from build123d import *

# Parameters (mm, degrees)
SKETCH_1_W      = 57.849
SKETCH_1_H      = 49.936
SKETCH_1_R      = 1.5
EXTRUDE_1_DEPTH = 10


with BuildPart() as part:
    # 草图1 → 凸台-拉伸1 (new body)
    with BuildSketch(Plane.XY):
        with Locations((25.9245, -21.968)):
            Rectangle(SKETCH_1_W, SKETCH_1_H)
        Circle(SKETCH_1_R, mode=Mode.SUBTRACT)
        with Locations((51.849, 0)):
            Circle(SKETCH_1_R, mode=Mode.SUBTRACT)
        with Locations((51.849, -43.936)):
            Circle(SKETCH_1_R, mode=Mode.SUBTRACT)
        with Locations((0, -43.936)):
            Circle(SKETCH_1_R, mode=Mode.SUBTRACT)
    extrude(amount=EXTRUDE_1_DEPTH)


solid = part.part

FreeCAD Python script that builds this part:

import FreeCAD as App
import Part
import Sketcher
from FreeCAD import Vector


def add_polygon(sketch, points):
    """Adds a closed chain of lines whose ends are joined by coincident constraints."""
    first, n = sketch.GeometryCount, len(points)
    for a, b in zip(points, points[1:] + points[:1]):
        sketch.addGeometry(Part.LineSegment(App.Vector(*a, 0), App.Vector(*b, 0)), False)
    for i in range(n):
        sketch.addConstraint(Sketcher.Constraint("Coincident", first + i, 2, first + (i + 1) % n, 1))

doc = App.newDocument("Part")
body = doc.addObject("PartDesign::Body", "Body")

# Sketch on XY plane
sketch1 = doc.addObject("Sketcher::SketchObject", "Sketch")
body.addObject(sketch1)
sketch1.AttachmentSupport = (doc.XY_Plane, [""])
sketch1.MapMode = "FlatFace"
add_polygon(sketch1, [(-3, 3), (-3, -46.936), (54.849, -46.936), (54.849, 3)])  # lines 0-3
sketch1.addGeometry(Part.Circle(Vector(0, -43.936, 0), Vector(0, 0, 1), 1.5), False)  # 4
sketch1.addGeometry(Part.Circle(Vector(51.849, -43.936, 0), Vector(0, 0, 1), 1.5), False)  # 5
sketch1.addGeometry(Part.Circle(Vector(0, 0, 0), Vector(0, 0, 1), 1.5), False)  # 6
sketch1.addGeometry(Part.Circle(Vector(51.849, 0, 0), Vector(0, 0, 1), 1.5), False)  # 7
sketch1.addConstraint([
    Sketcher.Constraint("Vertical", 0),
    Sketcher.Constraint("Horizontal", 1),
    Sketcher.Constraint("Vertical", 2),
    Sketcher.Constraint("Horizontal", 3),
    Sketcher.Constraint("Coincident", 6, 3, -1, 1),
    Sketcher.Constraint("Equal", 4, 5),
    Sketcher.Constraint("Equal", 5, 6),
    Sketcher.Constraint("Equal", 6, 7),
    Sketcher.Constraint("PointOnObject", 4, 3, -2),
    Sketcher.Constraint("PointOnObject", 7, 3, -1),
    Sketcher.Constraint("Horizontal", 4, 3, 5, 3),
    Sketcher.Constraint("Vertical", 5, 3, 7, 3),
    Sketcher.Constraint("Diameter", 4, 3.0),
    Sketcher.Constraint("DistanceX", 0, 2, -1, 1, 3.0),
    Sketcher.Constraint("DistanceY", -1, 1, 2, 2, 3.0),
    Sketcher.Constraint("DistanceY", 0, 2, 4, 3, 3.0),
    Sketcher.Constraint("DistanceX", 5, 3, 1, 2, 3.0),
    Sketcher.Constraint("DistanceX", 1, 1, 1, 2, 57.849),
    Sketcher.Constraint("DistanceY", 0, 2, 0, 1, 49.936),
])
pad1 = doc.addObject("PartDesign::Pad", "Pad")
body.addObject(pad1)
pad1.Profile = sketch1
pad1.Length = 10

doc.recompute()
